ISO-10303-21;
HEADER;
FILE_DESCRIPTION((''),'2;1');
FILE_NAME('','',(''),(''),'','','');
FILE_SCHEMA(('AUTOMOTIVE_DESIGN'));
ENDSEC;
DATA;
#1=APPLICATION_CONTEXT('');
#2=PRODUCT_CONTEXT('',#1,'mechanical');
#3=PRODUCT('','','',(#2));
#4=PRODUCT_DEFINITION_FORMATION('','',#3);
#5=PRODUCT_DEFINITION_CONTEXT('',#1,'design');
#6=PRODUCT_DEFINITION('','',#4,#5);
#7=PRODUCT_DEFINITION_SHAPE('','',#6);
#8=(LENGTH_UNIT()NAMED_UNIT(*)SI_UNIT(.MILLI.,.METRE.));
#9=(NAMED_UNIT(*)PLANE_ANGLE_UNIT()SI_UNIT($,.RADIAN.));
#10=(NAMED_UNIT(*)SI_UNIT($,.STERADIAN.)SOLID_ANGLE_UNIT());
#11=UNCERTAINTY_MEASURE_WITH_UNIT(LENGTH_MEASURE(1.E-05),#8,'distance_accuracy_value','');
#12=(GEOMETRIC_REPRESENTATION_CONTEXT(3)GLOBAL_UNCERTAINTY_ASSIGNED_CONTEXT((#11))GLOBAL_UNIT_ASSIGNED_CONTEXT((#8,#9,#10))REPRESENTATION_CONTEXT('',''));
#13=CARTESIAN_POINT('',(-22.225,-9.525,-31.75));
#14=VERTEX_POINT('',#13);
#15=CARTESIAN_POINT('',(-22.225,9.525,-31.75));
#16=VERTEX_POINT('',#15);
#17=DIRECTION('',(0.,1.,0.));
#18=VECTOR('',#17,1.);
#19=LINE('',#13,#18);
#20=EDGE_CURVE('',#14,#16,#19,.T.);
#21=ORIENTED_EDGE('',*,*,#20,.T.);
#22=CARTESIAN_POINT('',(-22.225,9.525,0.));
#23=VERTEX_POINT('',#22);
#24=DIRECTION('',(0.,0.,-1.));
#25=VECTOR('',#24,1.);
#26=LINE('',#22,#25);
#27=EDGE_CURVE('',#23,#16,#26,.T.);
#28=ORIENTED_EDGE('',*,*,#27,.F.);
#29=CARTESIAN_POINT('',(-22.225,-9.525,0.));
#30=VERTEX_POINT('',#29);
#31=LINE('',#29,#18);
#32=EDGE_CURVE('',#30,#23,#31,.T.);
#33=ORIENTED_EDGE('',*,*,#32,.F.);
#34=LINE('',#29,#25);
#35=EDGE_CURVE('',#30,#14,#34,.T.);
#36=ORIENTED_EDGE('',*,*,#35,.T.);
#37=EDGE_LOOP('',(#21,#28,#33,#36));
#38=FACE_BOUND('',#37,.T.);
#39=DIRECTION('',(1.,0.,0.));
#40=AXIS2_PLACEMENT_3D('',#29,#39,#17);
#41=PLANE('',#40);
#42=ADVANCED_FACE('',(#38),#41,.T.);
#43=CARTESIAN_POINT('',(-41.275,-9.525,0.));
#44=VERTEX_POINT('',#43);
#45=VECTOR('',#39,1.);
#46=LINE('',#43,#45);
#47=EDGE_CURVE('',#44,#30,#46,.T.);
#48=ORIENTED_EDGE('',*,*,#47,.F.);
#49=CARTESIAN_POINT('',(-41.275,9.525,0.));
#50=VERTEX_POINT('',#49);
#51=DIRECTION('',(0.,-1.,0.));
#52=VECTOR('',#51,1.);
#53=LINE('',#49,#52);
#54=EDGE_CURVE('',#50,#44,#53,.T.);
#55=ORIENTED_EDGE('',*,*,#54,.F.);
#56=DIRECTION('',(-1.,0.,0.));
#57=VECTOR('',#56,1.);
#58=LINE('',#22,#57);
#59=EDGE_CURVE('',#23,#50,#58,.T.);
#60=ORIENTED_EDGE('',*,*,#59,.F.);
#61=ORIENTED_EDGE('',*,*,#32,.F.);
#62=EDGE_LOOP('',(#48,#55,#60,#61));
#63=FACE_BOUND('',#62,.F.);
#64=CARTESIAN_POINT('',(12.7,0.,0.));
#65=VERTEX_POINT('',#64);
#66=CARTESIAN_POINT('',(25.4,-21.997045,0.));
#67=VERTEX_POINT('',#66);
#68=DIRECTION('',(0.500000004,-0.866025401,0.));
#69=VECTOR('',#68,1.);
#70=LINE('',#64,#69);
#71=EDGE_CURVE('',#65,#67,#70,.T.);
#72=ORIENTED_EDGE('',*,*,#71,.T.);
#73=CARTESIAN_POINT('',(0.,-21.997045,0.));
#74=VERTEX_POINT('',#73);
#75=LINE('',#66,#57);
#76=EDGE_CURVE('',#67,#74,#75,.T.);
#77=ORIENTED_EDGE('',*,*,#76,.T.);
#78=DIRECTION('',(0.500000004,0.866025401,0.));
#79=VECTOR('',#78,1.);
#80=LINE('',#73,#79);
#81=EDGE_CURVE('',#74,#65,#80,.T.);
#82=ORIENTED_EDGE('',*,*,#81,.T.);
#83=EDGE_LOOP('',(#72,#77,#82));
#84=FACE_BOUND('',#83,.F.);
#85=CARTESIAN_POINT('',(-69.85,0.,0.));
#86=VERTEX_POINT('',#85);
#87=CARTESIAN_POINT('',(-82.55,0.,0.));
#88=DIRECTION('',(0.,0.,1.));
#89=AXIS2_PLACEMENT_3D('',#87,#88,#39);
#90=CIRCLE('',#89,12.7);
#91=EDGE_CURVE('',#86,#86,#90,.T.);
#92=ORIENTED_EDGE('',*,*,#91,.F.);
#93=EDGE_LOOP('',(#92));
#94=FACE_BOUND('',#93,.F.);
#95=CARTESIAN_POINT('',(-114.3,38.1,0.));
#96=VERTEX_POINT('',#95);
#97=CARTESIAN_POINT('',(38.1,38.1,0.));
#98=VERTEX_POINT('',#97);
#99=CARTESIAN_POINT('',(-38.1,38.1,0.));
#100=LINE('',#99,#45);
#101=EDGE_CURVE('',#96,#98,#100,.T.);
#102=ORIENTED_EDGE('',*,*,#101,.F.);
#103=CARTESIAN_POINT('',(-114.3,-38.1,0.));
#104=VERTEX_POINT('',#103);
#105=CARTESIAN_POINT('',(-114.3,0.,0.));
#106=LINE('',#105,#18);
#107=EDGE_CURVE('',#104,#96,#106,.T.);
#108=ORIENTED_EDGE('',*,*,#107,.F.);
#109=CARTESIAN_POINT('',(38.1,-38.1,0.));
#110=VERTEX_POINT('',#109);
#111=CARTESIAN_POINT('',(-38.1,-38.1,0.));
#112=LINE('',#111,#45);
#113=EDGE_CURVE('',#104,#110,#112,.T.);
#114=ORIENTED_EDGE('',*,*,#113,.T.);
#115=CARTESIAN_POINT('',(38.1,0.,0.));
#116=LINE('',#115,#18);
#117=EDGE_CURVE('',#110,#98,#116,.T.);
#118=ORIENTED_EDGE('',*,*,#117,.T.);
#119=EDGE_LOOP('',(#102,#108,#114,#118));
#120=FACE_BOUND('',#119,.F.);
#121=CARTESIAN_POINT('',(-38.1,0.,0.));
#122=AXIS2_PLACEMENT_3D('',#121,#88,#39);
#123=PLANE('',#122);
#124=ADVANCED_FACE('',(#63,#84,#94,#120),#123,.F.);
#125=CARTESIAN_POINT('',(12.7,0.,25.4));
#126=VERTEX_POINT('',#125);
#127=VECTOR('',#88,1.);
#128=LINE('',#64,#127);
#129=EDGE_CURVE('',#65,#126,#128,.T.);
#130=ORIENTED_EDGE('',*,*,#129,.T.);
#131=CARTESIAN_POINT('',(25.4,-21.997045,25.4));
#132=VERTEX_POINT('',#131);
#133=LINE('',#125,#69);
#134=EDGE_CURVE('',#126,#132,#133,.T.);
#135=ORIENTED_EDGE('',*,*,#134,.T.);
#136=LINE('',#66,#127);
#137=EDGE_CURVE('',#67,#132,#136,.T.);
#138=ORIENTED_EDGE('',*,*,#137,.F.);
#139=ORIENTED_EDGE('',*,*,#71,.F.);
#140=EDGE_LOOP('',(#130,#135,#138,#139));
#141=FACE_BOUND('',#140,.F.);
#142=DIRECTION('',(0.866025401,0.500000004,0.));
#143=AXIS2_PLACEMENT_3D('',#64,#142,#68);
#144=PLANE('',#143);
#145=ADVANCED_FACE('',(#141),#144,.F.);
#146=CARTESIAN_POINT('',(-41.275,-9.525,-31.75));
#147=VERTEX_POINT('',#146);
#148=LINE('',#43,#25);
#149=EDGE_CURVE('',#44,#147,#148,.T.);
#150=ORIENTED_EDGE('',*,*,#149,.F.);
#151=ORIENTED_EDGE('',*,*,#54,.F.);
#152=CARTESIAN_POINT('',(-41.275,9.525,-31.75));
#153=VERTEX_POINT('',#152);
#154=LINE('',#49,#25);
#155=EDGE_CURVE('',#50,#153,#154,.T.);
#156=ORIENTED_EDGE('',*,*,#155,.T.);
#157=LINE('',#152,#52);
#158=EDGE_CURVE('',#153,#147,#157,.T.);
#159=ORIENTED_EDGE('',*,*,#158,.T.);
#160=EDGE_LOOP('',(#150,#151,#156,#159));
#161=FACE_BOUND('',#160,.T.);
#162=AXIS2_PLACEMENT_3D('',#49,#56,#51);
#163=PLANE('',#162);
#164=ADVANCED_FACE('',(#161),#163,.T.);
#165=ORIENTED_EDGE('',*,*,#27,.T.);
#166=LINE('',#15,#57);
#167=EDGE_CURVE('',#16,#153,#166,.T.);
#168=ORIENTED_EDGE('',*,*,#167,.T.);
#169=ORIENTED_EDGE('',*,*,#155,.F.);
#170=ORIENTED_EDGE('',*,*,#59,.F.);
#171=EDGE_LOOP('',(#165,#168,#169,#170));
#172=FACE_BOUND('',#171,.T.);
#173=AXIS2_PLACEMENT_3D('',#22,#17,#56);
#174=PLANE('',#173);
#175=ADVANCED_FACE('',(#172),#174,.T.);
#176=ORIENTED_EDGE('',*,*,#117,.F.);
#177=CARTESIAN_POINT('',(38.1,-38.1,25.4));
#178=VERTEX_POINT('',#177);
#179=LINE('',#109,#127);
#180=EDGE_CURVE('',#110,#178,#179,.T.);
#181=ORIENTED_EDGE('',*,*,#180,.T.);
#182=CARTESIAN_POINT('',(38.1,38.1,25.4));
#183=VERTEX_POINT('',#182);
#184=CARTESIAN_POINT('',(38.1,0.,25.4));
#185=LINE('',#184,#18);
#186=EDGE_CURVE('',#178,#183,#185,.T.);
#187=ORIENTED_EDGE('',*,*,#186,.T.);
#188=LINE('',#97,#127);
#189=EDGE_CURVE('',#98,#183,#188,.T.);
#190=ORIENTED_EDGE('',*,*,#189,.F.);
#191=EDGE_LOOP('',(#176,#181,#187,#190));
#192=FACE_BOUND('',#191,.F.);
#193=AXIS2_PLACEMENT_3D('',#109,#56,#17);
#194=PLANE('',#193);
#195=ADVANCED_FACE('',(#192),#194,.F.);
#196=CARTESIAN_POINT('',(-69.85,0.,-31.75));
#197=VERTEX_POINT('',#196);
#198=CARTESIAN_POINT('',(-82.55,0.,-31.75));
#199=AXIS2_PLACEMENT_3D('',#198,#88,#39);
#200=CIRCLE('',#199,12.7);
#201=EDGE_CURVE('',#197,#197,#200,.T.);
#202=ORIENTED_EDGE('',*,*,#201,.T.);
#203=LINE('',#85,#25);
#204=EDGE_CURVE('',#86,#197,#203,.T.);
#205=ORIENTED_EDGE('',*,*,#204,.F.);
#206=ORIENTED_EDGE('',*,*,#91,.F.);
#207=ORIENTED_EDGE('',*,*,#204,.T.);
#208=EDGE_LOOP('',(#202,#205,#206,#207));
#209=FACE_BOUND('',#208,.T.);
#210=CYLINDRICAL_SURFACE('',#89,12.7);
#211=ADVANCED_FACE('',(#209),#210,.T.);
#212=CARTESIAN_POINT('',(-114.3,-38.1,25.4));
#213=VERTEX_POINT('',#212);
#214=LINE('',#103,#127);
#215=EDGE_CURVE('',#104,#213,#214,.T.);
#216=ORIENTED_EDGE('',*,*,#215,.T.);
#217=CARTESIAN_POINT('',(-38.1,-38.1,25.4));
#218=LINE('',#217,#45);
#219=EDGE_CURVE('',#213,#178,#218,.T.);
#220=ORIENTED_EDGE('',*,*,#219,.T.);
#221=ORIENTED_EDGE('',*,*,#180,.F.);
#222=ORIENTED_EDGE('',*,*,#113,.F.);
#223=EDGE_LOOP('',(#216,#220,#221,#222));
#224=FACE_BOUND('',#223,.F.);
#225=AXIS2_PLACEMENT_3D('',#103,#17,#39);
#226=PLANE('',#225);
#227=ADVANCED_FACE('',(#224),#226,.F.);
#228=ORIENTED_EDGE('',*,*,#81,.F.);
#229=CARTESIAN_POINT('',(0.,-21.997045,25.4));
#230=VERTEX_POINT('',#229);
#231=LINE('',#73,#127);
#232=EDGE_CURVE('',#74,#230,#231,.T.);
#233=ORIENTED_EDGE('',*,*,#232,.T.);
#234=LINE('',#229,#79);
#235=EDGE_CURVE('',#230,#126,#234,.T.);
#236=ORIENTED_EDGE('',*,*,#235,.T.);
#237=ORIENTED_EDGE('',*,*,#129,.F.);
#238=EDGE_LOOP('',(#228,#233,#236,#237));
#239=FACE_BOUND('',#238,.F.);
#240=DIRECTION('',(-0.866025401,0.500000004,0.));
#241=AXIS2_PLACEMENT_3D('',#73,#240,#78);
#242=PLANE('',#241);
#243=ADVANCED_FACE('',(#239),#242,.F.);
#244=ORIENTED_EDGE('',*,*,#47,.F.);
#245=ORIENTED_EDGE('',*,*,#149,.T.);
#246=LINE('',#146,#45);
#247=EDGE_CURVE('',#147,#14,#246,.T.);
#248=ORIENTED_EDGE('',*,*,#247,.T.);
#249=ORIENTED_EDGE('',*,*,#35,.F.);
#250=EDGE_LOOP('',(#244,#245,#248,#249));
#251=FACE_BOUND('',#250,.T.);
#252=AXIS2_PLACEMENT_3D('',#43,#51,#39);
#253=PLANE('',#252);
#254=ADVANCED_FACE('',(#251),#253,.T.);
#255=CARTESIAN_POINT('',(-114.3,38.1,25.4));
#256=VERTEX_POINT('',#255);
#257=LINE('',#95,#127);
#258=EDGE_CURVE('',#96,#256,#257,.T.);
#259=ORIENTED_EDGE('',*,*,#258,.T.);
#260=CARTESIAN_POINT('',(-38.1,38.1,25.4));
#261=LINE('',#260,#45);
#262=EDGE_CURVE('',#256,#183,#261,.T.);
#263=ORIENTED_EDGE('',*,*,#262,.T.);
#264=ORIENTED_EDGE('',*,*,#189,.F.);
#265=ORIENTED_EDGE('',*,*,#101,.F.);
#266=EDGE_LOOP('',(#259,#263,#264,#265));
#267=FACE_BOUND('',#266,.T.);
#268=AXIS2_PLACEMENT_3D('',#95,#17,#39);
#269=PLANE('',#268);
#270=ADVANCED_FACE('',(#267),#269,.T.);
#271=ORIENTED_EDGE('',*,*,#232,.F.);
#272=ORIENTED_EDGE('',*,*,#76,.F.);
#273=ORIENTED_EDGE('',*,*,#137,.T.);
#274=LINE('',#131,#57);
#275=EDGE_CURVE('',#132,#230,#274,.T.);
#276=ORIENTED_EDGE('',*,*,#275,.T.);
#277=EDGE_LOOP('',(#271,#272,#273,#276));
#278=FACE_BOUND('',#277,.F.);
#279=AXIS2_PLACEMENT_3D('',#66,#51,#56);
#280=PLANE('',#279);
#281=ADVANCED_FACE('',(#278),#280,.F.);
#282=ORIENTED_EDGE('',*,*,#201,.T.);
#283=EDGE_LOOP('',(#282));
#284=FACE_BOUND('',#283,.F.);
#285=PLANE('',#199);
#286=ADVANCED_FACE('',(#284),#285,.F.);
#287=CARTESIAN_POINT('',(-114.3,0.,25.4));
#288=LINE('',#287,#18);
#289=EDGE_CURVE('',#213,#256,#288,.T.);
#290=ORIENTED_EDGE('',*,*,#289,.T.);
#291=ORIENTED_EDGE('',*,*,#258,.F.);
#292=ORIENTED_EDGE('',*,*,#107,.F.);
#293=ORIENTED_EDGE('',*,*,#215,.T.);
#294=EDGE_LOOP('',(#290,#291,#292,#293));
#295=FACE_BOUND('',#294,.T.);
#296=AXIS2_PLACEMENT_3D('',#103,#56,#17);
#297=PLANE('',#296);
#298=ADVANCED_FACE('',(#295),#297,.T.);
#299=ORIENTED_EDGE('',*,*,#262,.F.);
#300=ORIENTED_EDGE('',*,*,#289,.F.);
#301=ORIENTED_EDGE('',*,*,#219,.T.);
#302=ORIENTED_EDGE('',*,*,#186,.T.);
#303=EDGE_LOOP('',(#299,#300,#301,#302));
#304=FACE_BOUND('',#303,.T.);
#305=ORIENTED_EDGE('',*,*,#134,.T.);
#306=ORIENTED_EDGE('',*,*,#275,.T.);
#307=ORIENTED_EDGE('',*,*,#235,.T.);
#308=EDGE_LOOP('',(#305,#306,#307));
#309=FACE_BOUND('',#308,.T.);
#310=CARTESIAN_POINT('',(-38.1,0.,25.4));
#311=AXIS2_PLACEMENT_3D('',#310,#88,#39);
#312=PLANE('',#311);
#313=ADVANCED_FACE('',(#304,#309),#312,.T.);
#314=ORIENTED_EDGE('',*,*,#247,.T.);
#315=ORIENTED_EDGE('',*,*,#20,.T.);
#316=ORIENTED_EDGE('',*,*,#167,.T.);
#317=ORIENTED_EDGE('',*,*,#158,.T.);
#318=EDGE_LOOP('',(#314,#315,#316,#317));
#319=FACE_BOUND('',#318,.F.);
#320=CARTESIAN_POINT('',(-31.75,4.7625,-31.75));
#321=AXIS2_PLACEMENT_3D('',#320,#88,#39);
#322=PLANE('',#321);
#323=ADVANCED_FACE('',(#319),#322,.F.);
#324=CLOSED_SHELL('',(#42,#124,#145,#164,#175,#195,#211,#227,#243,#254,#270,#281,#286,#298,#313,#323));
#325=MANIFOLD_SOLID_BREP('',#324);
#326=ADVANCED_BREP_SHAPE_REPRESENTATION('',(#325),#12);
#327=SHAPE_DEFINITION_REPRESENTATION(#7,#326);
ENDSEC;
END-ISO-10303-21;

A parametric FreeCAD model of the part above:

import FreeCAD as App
import Part
import Sketcher
from FreeCAD import Vector
Q = App.Units.Quantity

doc = App.newDocument("Part")
body = doc.addObject("PartDesign::Body", "Body")

# Sketch on XY plane
sketch1 = doc.addObject("Sketcher::SketchObject", "Sketch")
body.addObject(sketch1)
sketch1.AttachmentSupport = (doc.XY_Plane, [""])
sketch1.MapMode = "FlatFace"
sketch1.addGeometry([
    Part.LineSegment(Vector(-114.3, 38.1, 0), Vector(-114.3, -38.1, 0)),  # 0
    Part.LineSegment(Vector(-114.3, -38.1, 0), Vector(38.1, -38.1, 0)),  # 1
    Part.LineSegment(Vector(38.1, -38.1, 0), Vector(38.1, 38.1, 0)),  # 2
    Part.LineSegment(Vector(38.1, 38.1, 0), Vector(-114.3, 38.1, 0)),  # 3
    Part.LineSegment(Vector(25.4, -21.997045, 0), Vector(0, -21.997045, 0)),  # 4
    Part.LineSegment(Vector(0, -21.997045, 0), Vector(12.7, 0, 0)),  # 5
    Part.LineSegment(Vector(12.7, 0, 0), Vector(25.4, -21.997045, 0)),  # 6
], False)
sketch1.addConstraint([
    Sketcher.Constraint("Coincident", 0, 2, 1, 1),
    Sketcher.Constraint("Coincident", 1, 2, 2, 1),
    Sketcher.Constraint("Coincident", 2, 2, 3, 1),
    Sketcher.Constraint("Coincident", 3, 2, 0, 1),
    Sketcher.Constraint("Coincident", 4, 2, 5, 1),
    Sketcher.Constraint("Coincident", 5, 2, 6, 1),
    Sketcher.Constraint("Coincident", 6, 2, 4, 1),
    Sketcher.Constraint("Vertical", 0),
    Sketcher.Constraint("Horizontal", 1),
    Sketcher.Constraint("Vertical", 2),
    Sketcher.Constraint("Horizontal", 3),
    Sketcher.Constraint("Horizontal", 4),
    Sketcher.Constraint("PointOnObject", 4, 2, -2),
    Sketcher.Constraint("PointOnObject", 5, 2, -1),
    Sketcher.Constraint("Equal", 5, 6),
    Sketcher.Constraint("DistanceX", 1, 1, 1, 2, Q("6 in")),
    Sketcher.Constraint("DistanceX", 4, 2, 4, 1, Q("1 in")),
    Sketcher.Constraint("DistanceY", 0, 2, 0, 1, Q("3 in")),
    Sketcher.Constraint("Distance", 5, Q("1 in")),
    Sketcher.Constraint("DistanceX", 5, 2, 1, 2, Q("1 in")),
    Sketcher.Constraint("DistanceY", 0, 2, -1, 1, Q("1.5 in")),
])
pad1 = doc.addObject("PartDesign::Pad", "Pad")
body.addObject(pad1)
pad1.Profile = sketch1
pad1.Length = Q("1 in")

# Sketch on XY plane
sketch2 = doc.addObject("Sketcher::SketchObject", "Sketch001")
body.addObject(sketch2)
sketch2.AttachmentSupport = (doc.XY_Plane, [""])
sketch2.MapMode = "FlatFace"
sketch2.addGeometry([
    Part.Circle(Vector(-82.55, 0, 0), Vector(0, 0, 1), 12.7),  # 0
    Part.LineSegment(Vector(-22.225, 9.525, 0), Vector(-41.275, 9.525, 0)),  # 1
    Part.LineSegment(Vector(-41.275, 9.525, 0), Vector(-41.275, -9.525, 0)),  # 2
    Part.LineSegment(Vector(-41.275, -9.525, 0), Vector(-22.225, -9.525, 0)),  # 3
    Part.LineSegment(Vector(-22.225, -9.525, 0), Vector(-22.225, 9.525, 0)),  # 4
], False)
sketch2.addConstraint([
    Sketcher.Constraint("Coincident", 1, 2, 2, 1),
    Sketcher.Constraint("Coincident", 2, 2, 3, 1),
    Sketcher.Constraint("Coincident", 3, 2, 4, 1),
    Sketcher.Constraint("Coincident", 4, 2, 1, 1),
    Sketcher.Constraint("Horizontal", 1),
    Sketcher.Constraint("Vertical", 2),
    Sketcher.Constraint("Horizontal", 3),
    Sketcher.Constraint("Vertical", 4),
    Sketcher.Constraint("PointOnObject", 0, 3, -1),
    Sketcher.Constraint("Equal", 3, 2),
    Sketcher.Constraint("Diameter", 0, Q("1 in")),
    Sketcher.Constraint("DistanceX", 1, 2, 1, 1, Q("0.75 in")),
    Sketcher.Constraint("DistanceX", 0, 3, -1, 1, Q("3.25 in")),
    Sketcher.Constraint("DistanceX", 1, 2, -1, 1, Q("1.625 in")),
    Sketcher.Constraint("DistanceY", -1, 1, 1, 2, Q("0.375 in")),
])
pad2 = doc.addObject("PartDesign::Pad", "Pad001")
body.addObject(pad2)
pad2.Profile = sketch2
pad2.Length = Q("1.25 in")
pad2.Reversed = True

doc.recompute()
